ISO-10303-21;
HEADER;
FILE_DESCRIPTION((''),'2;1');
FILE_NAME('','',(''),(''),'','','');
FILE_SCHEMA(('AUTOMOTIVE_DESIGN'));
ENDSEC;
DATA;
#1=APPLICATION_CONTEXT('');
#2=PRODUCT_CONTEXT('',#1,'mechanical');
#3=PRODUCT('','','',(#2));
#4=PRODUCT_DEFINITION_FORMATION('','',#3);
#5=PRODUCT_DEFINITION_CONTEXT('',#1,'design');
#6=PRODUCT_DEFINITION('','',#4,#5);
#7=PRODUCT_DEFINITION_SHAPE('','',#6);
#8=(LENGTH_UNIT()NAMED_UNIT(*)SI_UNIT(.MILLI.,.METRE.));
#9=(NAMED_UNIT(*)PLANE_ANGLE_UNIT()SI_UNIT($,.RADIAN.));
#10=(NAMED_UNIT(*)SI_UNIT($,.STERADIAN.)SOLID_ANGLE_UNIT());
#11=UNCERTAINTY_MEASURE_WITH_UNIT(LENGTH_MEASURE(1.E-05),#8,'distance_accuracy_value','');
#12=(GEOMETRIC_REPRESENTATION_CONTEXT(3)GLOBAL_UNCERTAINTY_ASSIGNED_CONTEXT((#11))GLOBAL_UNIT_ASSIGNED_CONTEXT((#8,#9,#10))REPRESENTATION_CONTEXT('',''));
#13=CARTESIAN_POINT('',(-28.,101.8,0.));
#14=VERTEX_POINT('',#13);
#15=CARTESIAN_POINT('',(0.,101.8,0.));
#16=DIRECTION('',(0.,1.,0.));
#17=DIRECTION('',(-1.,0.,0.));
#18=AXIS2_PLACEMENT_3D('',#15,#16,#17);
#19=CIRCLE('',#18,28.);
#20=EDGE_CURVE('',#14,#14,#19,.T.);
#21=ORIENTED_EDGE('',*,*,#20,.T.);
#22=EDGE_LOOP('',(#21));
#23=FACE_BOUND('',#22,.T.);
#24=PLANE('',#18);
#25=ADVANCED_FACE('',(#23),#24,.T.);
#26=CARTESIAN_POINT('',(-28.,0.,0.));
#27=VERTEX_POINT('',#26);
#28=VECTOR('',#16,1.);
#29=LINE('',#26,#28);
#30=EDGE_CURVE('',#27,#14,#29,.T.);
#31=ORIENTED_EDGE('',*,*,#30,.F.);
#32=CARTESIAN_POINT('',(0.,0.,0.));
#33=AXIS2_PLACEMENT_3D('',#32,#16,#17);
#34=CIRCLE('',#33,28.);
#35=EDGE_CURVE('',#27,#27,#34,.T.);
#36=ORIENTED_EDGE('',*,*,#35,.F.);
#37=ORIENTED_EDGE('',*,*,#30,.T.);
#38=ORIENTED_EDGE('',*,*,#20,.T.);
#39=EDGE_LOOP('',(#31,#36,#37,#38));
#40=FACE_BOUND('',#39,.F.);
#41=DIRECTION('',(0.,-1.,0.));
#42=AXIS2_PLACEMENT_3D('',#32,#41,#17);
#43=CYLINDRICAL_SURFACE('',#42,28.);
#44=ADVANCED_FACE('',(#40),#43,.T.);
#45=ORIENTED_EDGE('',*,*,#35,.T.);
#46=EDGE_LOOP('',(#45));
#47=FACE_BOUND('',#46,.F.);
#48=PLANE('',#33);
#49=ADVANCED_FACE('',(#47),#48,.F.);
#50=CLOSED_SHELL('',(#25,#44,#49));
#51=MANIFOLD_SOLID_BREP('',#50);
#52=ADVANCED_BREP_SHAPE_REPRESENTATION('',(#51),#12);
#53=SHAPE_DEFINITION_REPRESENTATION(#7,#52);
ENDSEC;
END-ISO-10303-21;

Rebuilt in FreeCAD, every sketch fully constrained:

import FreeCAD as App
import Part
import Sketcher

V = App.Vector

doc = App.newDocument("Part")
body = doc.addObject("PartDesign::Body", "Body")

# Sketch on XZ plane
sketch1 = body.newObject("Sketcher::SketchObject", "Sketch")
sketch1.AttachmentSupport = (doc.getObject("XZ_Plane"), [""])
sketch1.MapMode = "FlatFace"
sketch1.addGeometry(Part.Circle(V(0, 0, 0), V(0, 0, 1), 28), False)
sketch1.addConstraint([
    Sketcher.Constraint("Coincident", 0, 3, -1, 1),
    Sketcher.Constraint("Diameter", 0, 56.0),
])
pad1 = body.newObject("PartDesign::Pad", "Pad")
pad1.Profile = sketch1
pad1.Length = 101.8
pad1.Reversed = True

doc.recompute()
